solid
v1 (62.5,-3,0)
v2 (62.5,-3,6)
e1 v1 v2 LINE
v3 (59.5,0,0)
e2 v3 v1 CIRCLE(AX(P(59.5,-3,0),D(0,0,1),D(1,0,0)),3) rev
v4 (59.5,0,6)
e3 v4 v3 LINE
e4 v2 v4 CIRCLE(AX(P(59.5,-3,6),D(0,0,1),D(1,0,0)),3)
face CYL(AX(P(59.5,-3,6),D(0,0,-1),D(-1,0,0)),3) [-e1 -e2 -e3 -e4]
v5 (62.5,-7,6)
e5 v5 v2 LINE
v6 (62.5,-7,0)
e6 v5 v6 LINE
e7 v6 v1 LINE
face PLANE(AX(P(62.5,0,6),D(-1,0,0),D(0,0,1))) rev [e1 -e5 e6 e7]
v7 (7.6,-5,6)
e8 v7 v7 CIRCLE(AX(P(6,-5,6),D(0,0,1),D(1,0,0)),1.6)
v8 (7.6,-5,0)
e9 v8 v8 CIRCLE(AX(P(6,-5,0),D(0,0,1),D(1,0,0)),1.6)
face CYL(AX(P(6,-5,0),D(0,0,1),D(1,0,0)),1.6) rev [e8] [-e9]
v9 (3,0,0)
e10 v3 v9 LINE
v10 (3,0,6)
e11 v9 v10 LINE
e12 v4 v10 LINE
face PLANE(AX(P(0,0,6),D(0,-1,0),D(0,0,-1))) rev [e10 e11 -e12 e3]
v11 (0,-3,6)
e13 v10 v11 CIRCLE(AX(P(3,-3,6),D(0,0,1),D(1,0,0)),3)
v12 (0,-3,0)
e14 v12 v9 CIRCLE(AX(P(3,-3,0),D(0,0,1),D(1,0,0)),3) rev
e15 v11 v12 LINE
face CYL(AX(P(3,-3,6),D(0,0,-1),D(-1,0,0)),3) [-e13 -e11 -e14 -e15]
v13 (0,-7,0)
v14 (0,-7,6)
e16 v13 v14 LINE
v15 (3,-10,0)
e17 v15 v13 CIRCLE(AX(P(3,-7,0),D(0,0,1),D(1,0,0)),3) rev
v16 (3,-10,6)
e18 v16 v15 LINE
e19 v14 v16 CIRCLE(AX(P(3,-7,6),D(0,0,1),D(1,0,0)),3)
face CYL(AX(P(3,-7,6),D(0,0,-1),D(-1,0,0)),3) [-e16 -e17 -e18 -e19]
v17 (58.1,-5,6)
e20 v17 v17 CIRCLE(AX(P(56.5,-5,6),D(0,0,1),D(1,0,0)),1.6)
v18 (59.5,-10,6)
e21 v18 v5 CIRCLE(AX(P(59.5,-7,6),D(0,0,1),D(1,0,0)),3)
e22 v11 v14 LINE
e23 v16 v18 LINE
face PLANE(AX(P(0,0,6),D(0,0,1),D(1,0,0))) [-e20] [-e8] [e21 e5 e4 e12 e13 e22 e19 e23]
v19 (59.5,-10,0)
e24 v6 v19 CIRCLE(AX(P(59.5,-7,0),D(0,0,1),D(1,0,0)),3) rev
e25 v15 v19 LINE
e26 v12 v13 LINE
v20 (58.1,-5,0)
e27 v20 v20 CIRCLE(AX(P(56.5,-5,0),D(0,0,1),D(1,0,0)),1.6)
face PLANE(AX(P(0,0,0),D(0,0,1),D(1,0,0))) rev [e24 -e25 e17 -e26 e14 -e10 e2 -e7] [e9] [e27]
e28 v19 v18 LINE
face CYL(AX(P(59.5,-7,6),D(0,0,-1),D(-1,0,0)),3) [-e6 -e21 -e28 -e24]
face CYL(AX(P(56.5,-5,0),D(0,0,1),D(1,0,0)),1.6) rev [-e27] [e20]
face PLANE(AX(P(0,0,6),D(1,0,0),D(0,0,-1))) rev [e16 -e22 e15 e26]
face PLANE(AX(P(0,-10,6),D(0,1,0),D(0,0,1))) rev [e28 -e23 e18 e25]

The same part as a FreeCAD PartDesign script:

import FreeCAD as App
import Part
import Sketcher


def edges_at(feature, points):
    """Names of the edges that pass closest to the given points."""
    edges = feature.Shape.Edges
    near = lambda p: min(range(len(edges)), key=lambda i: edges[i].distToShape(Part.Vertex(*p))[0])
    return sorted({f"Edge{near(p) + 1}" for p in points})


def add_polygon(sketch, points):
    """Adds a closed chain of lines whose ends are joined by coincident constraints."""
    first, n = sketch.GeometryCount, len(points)
    for a, b in zip(points, points[1:] + points[:1]):
        sketch.addGeometry(Part.LineSegment(App.Vector(*a, 0), App.Vector(*b, 0)), False)
    for i in range(n):
        sketch.addConstraint(Sketcher.Constraint("Coincident", first + i, 2, first + (i + 1) % n, 1))

doc = App.newDocument("Part")
params = doc.addObject("Spreadsheet::Sheet", "Params")
for row, (alias, value) in enumerate([
    ("sketch1_height", "10 mm"),
    ("sketch1_width", "62.5 mm"),
    ("pad1_length", "6 mm"),
    ("sketch2_diameter", "3.2 mm"),
    ("fillet_radius", "3 mm"),
], start=1):
    params.set(f"A{row}", alias)
    params.set(f"B{row}", "=" + value)
    params.setAlias(f"B{row}", alias)

body = doc.addObject("PartDesign::Body", "Body")

# Sketch on XY plane
sketch1 = doc.addObject("Sketcher::SketchObject", "Sketch")
body.addObject(sketch1)
sketch1.AttachmentSupport = (doc.XY_Plane, [""])
sketch1.MapMode = "FlatFace"
add_polygon(sketch1, [(0, 0), (0, -10), (62, -10), (62, 0)])  # lines 0-3
sketch1.addConstraint([
    Sketcher.Constraint("Vertical", 0),
    Sketcher.Constraint("Horizontal", 1),
    Sketcher.Constraint("Vertical", 2),
    Sketcher.Constraint("Horizontal", 3),
    Sketcher.Constraint("Coincident", 3, 2, -1, 1),
    Sketcher.Constraint("DistanceY", 0, 2, 0, 1, 10.0),
    Sketcher.Constraint("DistanceX", 1, 1, 1, 2, 62.5),
])
sketch1.setExpression("Constraints[9]", "Params.sketch1_height")
sketch1.setExpression("Constraints[10]", "Params.sketch1_width")
pad1 = doc.addObject("PartDesign::Pad", "Pad")
body.addObject(pad1)
pad1.Profile = sketch1
pad1.setExpression("Length", "Params.pad1_length")

# Sketch on XY plane
sketch2 = doc.addObject("Sketcher::SketchObject", "Sketch001")
body.addObject(sketch2)
sketch2.AttachmentSupport = (doc.XY_Plane, [""])
sketch2.MapMode = "FlatFace"
sketch2.AttachmentOffset = App.Placement(App.Vector(0, 0, 6), App.Rotation())
sketch2.addGeometry([
    Part.Circle(App.Vector(56.5, -5, 0), App.Vector(0, 0, 1), 1.6),
    Part.Circle(App.Vector(6, -5, 0), App.Vector(0, 0, 1), 1.6),
], False)
sketch2.addConstraint([
    Sketcher.Constraint("Equal", 0, 1),
    Sketcher.Constraint("Horizontal", 0, 3, 1, 3),
    Sketcher.Constraint("Diameter", 0, 3.2),
    Sketcher.Constraint("DistanceY", 0, 3, -1, 1, 5.0),
    Sketcher.Constraint("DistanceX", -1, 1, 1, 3, 6.0),
    Sketcher.Constraint("DistanceX", -1, 1, 0, 3, 56.5),
])
sketch2.setExpression("Constraints[2]", "Params.sketch2_diameter")
pocket1 = doc.addObject("PartDesign::Pocket", "Pocket")
body.addObject(pocket1)
pocket1.Profile = sketch2
pocket1.Type = "ThroughAll"
doc.recompute()

fillet = doc.addObject("PartDesign::Fillet", "Fillet")
body.addObject(fillet)
fillet.Base = (pocket1, edges_at(pocket1, [
    (0, 0, 3),
    (62.5, 0, 3),
    (62.5, -10, 3),
    (0, -10, 3),
]))
fillet.setExpression("Radius", "Params.fillet_radius")

doc.recompute()
